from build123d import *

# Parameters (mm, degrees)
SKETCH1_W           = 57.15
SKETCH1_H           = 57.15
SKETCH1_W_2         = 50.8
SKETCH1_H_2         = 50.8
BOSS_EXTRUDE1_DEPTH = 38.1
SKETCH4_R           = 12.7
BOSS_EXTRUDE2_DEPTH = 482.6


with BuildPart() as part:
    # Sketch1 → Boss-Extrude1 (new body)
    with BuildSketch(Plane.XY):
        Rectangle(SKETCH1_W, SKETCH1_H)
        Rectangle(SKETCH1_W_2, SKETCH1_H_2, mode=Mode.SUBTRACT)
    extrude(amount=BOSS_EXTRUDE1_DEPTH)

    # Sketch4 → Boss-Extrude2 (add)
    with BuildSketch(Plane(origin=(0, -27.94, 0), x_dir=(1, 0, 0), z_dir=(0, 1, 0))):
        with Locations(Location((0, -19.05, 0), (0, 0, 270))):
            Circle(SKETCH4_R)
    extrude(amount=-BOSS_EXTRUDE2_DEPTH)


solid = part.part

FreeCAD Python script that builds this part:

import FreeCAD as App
import Part
import Sketcher

V = App.Vector
Q = App.Units.Quantity


def add_polygon(sketch, points):
    """Adds a closed chain of lines whose ends are joined by coincident constraints."""
    first, n = sketch.GeometryCount, len(points)
    for a, b in zip(points, points[1:] + points[:1]):
        sketch.addGeometry(Part.LineSegment(App.Vector(*a, 0), App.Vector(*b, 0)), False)
    for i in range(n):
        sketch.addConstraint(Sketcher.Constraint("Coincident", first + i, 2, first + (i + 1) % n, 1))

doc = App.newDocument("Part")
body = doc.addObject("PartDesign::Body", "Body")

# Sketch on XY plane
sketch1 = body.newObject("Sketcher::SketchObject", "Sketch")
sketch1.AttachmentSupport = (doc.getObject("XY_Plane"), [""])
sketch1.MapMode = "FlatFace"
add_polygon(sketch1, [(-28.575, 28.575), (-28.575, -28.575), (28.575, -28.575), (28.575, 28.575)])  # lines 0-3
add_polygon(sketch1, [(25.4, -25.4), (-25.4, -25.4), (-25.4, 25.4), (25.4, 25.4)])  # lines 4-7
sketch1.addConstraint(Sketcher.Constraint("Vertical", 0))
sketch1.addConstraint(Sketcher.Constraint("Horizontal", 1))
sketch1.addConstraint(Sketcher.Constraint("Vertical", 2))
sketch1.addConstraint(Sketcher.Constraint("Horizontal", 3))
sketch1.addConstraint(Sketcher.Constraint("Horizontal", 4))
sketch1.addConstraint(Sketcher.Constraint("Vertical", 5))
sketch1.addConstraint(Sketcher.Constraint("Horizontal", 6))
sketch1.addConstraint(Sketcher.Constraint("Vertical", 7))
sketch1.addConstraint(Sketcher.Constraint("Symmetric", 0, 2, 2, 2, -1, 1))
sketch1.addConstraint(Sketcher.Constraint("Symmetric", 4, 2, 6, 2, -1, 1))
sketch1.addConstraint(Sketcher.Constraint("Equal", 3, 0))
sketch1.addConstraint(Sketcher.Constraint("Equal", 6, 5))
sketch1.addConstraint(Sketcher.Constraint("DistanceX", 4, 2, 4, 1, Q("2 in")))
sketch1.addConstraint(Sketcher.Constraint("DistanceX", 1, 1, 1, 2, Q("2.25 in")))
pad1 = body.newObject("PartDesign::Pad", "Pad")
pad1.Profile = sketch1
pad1.Length = Q("1.5 in")

# Sketch on XZ plane
sketch2 = body.newObject("Sketcher::SketchObject", "Sketch001")
sketch2.AttachmentSupport = (doc.getObject("XZ_Plane"), [""])
sketch2.MapMode = "FlatFace"
sketch2.AttachmentOffset = App.Placement(V(0, 0, 1.1 * 25.4), App.Rotation())
sketch2.addGeometry(Part.Circle(V(0, 19.05, 0), V(0, 0, 1), 12.7), False)
sketch2.addConstraint(Sketcher.Constraint("PointOnObject", 0, 3, -2))
sketch2.addConstraint(Sketcher.Constraint("Diameter", 0, Q("1 in")))
sketch2.addConstraint(Sketcher.Constraint("DistanceY", -1, 1, 0, 3, Q("0.75 in")))
pad2 = body.newObject("PartDesign::Pad", "Pad001")
pad2.Profile = sketch2
pad2.Length = Q("19 in")

doc.recompute()
